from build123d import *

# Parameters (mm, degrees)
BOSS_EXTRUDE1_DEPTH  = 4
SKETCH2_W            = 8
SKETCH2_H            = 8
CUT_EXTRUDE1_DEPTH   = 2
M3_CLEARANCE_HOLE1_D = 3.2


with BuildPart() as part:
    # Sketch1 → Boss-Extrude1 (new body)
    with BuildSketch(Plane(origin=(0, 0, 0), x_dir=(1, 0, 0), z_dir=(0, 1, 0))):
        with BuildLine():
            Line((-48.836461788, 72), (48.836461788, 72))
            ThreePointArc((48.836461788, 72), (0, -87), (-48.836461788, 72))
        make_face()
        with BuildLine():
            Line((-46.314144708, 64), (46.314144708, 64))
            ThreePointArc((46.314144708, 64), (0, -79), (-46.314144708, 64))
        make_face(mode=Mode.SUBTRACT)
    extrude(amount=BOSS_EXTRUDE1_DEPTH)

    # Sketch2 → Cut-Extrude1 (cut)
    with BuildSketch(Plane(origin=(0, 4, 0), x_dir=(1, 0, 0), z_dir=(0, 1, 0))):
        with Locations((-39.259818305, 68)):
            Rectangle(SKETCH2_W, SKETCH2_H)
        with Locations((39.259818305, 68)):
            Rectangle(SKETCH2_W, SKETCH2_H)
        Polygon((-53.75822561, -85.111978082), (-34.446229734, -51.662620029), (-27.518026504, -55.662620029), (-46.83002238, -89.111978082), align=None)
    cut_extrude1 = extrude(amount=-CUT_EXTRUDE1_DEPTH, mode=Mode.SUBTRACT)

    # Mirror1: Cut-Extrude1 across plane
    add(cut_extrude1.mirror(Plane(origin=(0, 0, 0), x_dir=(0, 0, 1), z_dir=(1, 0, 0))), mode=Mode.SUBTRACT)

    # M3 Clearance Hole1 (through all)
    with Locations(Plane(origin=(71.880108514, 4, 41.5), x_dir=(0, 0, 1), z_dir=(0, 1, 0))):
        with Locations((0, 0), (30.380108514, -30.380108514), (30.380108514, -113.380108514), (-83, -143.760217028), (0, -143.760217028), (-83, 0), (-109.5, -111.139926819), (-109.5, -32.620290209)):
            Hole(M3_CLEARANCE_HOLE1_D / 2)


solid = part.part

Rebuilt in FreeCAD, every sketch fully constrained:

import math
import FreeCAD as App
import Part
import Sketcher

V = App.Vector
Q = App.Units.Quantity


def add_polygon(sketch, points):
    """Adds a closed chain of lines whose ends are joined by coincident constraints."""
    first, n = sketch.GeometryCount, len(points)
    for a, b in zip(points, points[1:] + points[:1]):
        sketch.addGeometry(Part.LineSegment(App.Vector(*a, 0), App.Vector(*b, 0)), False)
    for i in range(n):
        sketch.addConstraint(Sketcher.Constraint("Coincident", first + i, 2, first + (i + 1) % n, 1))

doc = App.newDocument("Part")
params = doc.addObject("Spreadsheet::Sheet", "Params")
for row, (alias, value) in enumerate([
    ("sketch1_radius", "87 mm"),
    ("sketch1_radius2", "79 mm"),
    ("pad1_length", "4 mm"),
    ("sketch2_width", "8 mm"),
    ("sketch2_length", "8 mm"),
    ("pocket1_length", "2 mm"),
    ("sketch3_diameter", "3.2 mm"),
    ("hole_diameter", "3.2 mm"),
], start=1):
    params.set(f"A{row}", alias)
    params.set(f"B{row}", "=" + value)
    params.setAlias(f"B{row}", alias)

body = doc.addObject("PartDesign::Body", "Body")

# Sketch on XZ plane
sketch1 = body.newObject("Sketcher::SketchObject", "Sketch")
sketch1.AttachmentSupport = (doc.getObject("XZ_Plane"), [""])
sketch1.MapMode = "FlatFace"
sketch1.addGeometry([
    Part.LineSegment(V(48.836462, -72, 0), V(-48.836462, -72, 0)),
    Part.ArcOfCircle(Part.Circle(V(0, 0, 0), V(0, 0, 1), 87), math.radians(-55.851576), math.radians(235.851576)),
    Part.LineSegment(V(-46.314145, -64, 0), V(46.314145, -64, 0)),
    Part.ArcOfCircle(Part.Circle(V(0, 0, 0), V(0, 0, 1), 79), math.radians(-54.108301), math.radians(234.108301)),
], False)
sketch1.addConstraint([
    Sketcher.Constraint("Coincident", 0, 1, 1, 1),
    Sketcher.Constraint("Coincident", 1, 2, 0, 2),
    Sketcher.Constraint("Coincident", 2, 1, 3, 2),
    Sketcher.Constraint("Coincident", 3, 1, 2, 2),
    Sketcher.Constraint("Horizontal", 0),
    Sketcher.Constraint("Horizontal", 2),
    Sketcher.Constraint("Coincident", 1, 3, -1, 1),
    Sketcher.Constraint("Coincident", 3, 3, -1, 1),
    Sketcher.Constraint("Radius", 1, 87.0),
    Sketcher.Constraint("Radius", 3, 79.0),
    Sketcher.Constraint("DistanceY", 0, 1, -1, 1, 72.0),
    Sketcher.Constraint("DistanceY", 2, 1, -1, 1, 64.0),
])
sketch1.setExpression("Constraints[8]", "Params.sketch1_radius")
sketch1.setExpression("Constraints[9]", "Params.sketch1_radius2")
pad1 = body.newObject("PartDesign::Pad", "Pad")
pad1.Profile = sketch1
pad1.setExpression("Length", "Params.pad1_length")
pad1.Reversed = True

# Sketch on XZ plane
sketch2 = body.newObject("Sketcher::SketchObject", "Sketch001")
sketch2.AttachmentSupport = (doc.getObject("XZ_Plane"), [""])
sketch2.MapMode = "FlatFace"
sketch2.AttachmentOffset = App.Placement(V(0, 0, -4), App.Rotation())
add_polygon(sketch2, [(-43.259818, -72), (-43.259818, -64), (-35.259818, -64), (-35.259818, -72)])  # lines 0-3
add_polygon(sketch2, [(35.259818, -72), (35.259818, -64), (43.259818, -64), (43.259818, -72)])  # lines 4-7
add_polygon(sketch2, [(-34.44623, 51.66262), (-53.758226, 85.111978), (-46.830022, 89.111978), (-27.518027, 55.66262)])  # lines 8-11
sketch2.addConstraint([
    Sketcher.Constraint("Vertical", 0),
    Sketcher.Constraint("Horizontal", 1),
    Sketcher.Constraint("Vertical", 2),
    Sketcher.Constraint("Horizontal", 3),
    Sketcher.Constraint("Vertical", 4),
    Sketcher.Constraint("Horizontal", 5),
    Sketcher.Constraint("Vertical", 6),
    Sketcher.Constraint("Horizontal", 7),
    Sketcher.Constraint("Symmetric", 1, 2, 4, 2, -2),
    Sketcher.Constraint("Symmetric", 3, 2, 6, 2, -2),
    Sketcher.Constraint("Perpendicular", 8, 9),
    Sketcher.Constraint("Perpendicular", 9, 10),
    Sketcher.Constraint("Perpendicular", 10, 11),
    Sketcher.Constraint("Equal", 7, 0),
    Sketcher.Constraint("DistanceX", 1, 1, 1, 2, 8.0),
    Sketcher.Constraint("Angle", 8, Q("120 deg")),
    Sketcher.Constraint("Distance", 9, 8.0),
    Sketcher.Constraint("DistanceY", 0, 2, -1, 1, 64.0),
    Sketcher.Constraint("DistanceX", 8, 2, 10, 2, 26.240199),
    Sketcher.Constraint("DistanceX", 0, 2, -1, 1, 43.259818),
    Sketcher.Constraint("DistanceY", -1, 1, 8, 2, 85.111978),
    Sketcher.Constraint("DistanceX", 11, 2, -1, 1, 34.44623),
])
sketch2.setExpression("Constraints[26]", "Params.sketch2_width")
sketch2.setExpression("Constraints[28]", "Params.sketch2_length")
pocket1 = body.newObject("PartDesign::Pocket", "Pocket")
pocket1.Profile = sketch2
pocket1.setExpression("Length", "Params.pocket1_length")
pocket1.Reversed = True
doc.recompute()

mirrored = body.newObject("PartDesign::Mirrored", "Mirrored")
mirrored.Originals = [pocket1]
mirrored.MirrorPlane = (doc.getObject("YZ_Plane"), [""])
body.Tip = mirrored

# Sketch on XZ plane
sketch3 = body.newObject("Sketcher::SketchObject", "Sketch002")
sketch3.AttachmentSupport = (doc.getObject("XZ_Plane"), [""])
sketch3.MapMode = "FlatFace"
sketch3.AttachmentOffset = App.Placement(V(0, 0, -4), App.Rotation())
sketch3.addGeometry([
    Part.Circle(V(71.880109, 41.5, 0), V(0, 0, 1), 1.6),  # 0
    Part.Circle(V(41.5, 71.880109, 0), V(0, 0, 1), 1.6),  # 1
    Part.Circle(V(-41.5, 71.880109, 0), V(0, 0, 1), 1.6),  # 2
    Part.Circle(V(-71.880109, -41.5, 0), V(0, 0, 1), 1.6),  # 3
    Part.Circle(V(-71.880109, 41.5, 0), V(0, 0, 1), 1.6),  # 4
    Part.Circle(V(71.880109, -41.5, 0), V(0, 0, 1), 1.6),  # 5
    Part.Circle(V(-39.259818, -68, 0), V(0, 0, 1), 1.6),  # 6
    Part.Circle(V(39.259818, -68, 0), V(0, 0, 1), 1.6),  # 7
], False)
sketch3.addConstraint([
    Sketcher.Constraint("Equal", 0, 1),
    Sketcher.Constraint("Equal", 1, 2),
    Sketcher.Constraint("Equal", 2, 3),
    Sketcher.Constraint("Equal", 3, 4),
    Sketcher.Constraint("Equal", 4, 5),
    Sketcher.Constraint("Equal", 5, 6),
    Sketcher.Constraint("Equal", 6, 7),
    Sketcher.Constraint("Symmetric", 0, 3, 3, 3, -1, 1),
    Sketcher.Constraint("Symmetric", 4, 3, 5, 3, -1, 1),
    Sketcher.Constraint("Symmetric", 1, 3, 2, 3, -2),
    Sketcher.Constraint("Symmetric", 0, 3, 4, 3, -2),
    Sketcher.Constraint("Symmetric", 6, 3, 7, 3, -2),
    Sketcher.Constraint("Diameter", 0, 3.2),
    Sketcher.Constraint("DistanceY", 6, 3, -1, 1, 68.0),
    Sketcher.Constraint("DistanceX", 2, 3, 1, 3, 83.0),
    Sketcher.Constraint("DistanceY", 3, 3, 0, 3, 83.0),
    Sketcher.Constraint("DistanceX", -1, 1, 0, 3, 71.880109),
    Sketcher.Constraint("DistanceY", -1, 1, 1, 3, 71.880109),
    Sketcher.Constraint("DistanceX", 6, 3, -1, 1, 39.259818),
])
sketch3.setExpression("Constraints[12]", "Params.sketch3_diameter")
doc.recompute()
hole = body.newObject("PartDesign::Hole", "Hole")
hole.Profile = sketch3
hole.ThreadType = "None"
hole.setExpression("Diameter", "Params.hole_diameter")
hole.DepthType = "ThroughAll"
hole.Reversed = True

doc.recompute()
